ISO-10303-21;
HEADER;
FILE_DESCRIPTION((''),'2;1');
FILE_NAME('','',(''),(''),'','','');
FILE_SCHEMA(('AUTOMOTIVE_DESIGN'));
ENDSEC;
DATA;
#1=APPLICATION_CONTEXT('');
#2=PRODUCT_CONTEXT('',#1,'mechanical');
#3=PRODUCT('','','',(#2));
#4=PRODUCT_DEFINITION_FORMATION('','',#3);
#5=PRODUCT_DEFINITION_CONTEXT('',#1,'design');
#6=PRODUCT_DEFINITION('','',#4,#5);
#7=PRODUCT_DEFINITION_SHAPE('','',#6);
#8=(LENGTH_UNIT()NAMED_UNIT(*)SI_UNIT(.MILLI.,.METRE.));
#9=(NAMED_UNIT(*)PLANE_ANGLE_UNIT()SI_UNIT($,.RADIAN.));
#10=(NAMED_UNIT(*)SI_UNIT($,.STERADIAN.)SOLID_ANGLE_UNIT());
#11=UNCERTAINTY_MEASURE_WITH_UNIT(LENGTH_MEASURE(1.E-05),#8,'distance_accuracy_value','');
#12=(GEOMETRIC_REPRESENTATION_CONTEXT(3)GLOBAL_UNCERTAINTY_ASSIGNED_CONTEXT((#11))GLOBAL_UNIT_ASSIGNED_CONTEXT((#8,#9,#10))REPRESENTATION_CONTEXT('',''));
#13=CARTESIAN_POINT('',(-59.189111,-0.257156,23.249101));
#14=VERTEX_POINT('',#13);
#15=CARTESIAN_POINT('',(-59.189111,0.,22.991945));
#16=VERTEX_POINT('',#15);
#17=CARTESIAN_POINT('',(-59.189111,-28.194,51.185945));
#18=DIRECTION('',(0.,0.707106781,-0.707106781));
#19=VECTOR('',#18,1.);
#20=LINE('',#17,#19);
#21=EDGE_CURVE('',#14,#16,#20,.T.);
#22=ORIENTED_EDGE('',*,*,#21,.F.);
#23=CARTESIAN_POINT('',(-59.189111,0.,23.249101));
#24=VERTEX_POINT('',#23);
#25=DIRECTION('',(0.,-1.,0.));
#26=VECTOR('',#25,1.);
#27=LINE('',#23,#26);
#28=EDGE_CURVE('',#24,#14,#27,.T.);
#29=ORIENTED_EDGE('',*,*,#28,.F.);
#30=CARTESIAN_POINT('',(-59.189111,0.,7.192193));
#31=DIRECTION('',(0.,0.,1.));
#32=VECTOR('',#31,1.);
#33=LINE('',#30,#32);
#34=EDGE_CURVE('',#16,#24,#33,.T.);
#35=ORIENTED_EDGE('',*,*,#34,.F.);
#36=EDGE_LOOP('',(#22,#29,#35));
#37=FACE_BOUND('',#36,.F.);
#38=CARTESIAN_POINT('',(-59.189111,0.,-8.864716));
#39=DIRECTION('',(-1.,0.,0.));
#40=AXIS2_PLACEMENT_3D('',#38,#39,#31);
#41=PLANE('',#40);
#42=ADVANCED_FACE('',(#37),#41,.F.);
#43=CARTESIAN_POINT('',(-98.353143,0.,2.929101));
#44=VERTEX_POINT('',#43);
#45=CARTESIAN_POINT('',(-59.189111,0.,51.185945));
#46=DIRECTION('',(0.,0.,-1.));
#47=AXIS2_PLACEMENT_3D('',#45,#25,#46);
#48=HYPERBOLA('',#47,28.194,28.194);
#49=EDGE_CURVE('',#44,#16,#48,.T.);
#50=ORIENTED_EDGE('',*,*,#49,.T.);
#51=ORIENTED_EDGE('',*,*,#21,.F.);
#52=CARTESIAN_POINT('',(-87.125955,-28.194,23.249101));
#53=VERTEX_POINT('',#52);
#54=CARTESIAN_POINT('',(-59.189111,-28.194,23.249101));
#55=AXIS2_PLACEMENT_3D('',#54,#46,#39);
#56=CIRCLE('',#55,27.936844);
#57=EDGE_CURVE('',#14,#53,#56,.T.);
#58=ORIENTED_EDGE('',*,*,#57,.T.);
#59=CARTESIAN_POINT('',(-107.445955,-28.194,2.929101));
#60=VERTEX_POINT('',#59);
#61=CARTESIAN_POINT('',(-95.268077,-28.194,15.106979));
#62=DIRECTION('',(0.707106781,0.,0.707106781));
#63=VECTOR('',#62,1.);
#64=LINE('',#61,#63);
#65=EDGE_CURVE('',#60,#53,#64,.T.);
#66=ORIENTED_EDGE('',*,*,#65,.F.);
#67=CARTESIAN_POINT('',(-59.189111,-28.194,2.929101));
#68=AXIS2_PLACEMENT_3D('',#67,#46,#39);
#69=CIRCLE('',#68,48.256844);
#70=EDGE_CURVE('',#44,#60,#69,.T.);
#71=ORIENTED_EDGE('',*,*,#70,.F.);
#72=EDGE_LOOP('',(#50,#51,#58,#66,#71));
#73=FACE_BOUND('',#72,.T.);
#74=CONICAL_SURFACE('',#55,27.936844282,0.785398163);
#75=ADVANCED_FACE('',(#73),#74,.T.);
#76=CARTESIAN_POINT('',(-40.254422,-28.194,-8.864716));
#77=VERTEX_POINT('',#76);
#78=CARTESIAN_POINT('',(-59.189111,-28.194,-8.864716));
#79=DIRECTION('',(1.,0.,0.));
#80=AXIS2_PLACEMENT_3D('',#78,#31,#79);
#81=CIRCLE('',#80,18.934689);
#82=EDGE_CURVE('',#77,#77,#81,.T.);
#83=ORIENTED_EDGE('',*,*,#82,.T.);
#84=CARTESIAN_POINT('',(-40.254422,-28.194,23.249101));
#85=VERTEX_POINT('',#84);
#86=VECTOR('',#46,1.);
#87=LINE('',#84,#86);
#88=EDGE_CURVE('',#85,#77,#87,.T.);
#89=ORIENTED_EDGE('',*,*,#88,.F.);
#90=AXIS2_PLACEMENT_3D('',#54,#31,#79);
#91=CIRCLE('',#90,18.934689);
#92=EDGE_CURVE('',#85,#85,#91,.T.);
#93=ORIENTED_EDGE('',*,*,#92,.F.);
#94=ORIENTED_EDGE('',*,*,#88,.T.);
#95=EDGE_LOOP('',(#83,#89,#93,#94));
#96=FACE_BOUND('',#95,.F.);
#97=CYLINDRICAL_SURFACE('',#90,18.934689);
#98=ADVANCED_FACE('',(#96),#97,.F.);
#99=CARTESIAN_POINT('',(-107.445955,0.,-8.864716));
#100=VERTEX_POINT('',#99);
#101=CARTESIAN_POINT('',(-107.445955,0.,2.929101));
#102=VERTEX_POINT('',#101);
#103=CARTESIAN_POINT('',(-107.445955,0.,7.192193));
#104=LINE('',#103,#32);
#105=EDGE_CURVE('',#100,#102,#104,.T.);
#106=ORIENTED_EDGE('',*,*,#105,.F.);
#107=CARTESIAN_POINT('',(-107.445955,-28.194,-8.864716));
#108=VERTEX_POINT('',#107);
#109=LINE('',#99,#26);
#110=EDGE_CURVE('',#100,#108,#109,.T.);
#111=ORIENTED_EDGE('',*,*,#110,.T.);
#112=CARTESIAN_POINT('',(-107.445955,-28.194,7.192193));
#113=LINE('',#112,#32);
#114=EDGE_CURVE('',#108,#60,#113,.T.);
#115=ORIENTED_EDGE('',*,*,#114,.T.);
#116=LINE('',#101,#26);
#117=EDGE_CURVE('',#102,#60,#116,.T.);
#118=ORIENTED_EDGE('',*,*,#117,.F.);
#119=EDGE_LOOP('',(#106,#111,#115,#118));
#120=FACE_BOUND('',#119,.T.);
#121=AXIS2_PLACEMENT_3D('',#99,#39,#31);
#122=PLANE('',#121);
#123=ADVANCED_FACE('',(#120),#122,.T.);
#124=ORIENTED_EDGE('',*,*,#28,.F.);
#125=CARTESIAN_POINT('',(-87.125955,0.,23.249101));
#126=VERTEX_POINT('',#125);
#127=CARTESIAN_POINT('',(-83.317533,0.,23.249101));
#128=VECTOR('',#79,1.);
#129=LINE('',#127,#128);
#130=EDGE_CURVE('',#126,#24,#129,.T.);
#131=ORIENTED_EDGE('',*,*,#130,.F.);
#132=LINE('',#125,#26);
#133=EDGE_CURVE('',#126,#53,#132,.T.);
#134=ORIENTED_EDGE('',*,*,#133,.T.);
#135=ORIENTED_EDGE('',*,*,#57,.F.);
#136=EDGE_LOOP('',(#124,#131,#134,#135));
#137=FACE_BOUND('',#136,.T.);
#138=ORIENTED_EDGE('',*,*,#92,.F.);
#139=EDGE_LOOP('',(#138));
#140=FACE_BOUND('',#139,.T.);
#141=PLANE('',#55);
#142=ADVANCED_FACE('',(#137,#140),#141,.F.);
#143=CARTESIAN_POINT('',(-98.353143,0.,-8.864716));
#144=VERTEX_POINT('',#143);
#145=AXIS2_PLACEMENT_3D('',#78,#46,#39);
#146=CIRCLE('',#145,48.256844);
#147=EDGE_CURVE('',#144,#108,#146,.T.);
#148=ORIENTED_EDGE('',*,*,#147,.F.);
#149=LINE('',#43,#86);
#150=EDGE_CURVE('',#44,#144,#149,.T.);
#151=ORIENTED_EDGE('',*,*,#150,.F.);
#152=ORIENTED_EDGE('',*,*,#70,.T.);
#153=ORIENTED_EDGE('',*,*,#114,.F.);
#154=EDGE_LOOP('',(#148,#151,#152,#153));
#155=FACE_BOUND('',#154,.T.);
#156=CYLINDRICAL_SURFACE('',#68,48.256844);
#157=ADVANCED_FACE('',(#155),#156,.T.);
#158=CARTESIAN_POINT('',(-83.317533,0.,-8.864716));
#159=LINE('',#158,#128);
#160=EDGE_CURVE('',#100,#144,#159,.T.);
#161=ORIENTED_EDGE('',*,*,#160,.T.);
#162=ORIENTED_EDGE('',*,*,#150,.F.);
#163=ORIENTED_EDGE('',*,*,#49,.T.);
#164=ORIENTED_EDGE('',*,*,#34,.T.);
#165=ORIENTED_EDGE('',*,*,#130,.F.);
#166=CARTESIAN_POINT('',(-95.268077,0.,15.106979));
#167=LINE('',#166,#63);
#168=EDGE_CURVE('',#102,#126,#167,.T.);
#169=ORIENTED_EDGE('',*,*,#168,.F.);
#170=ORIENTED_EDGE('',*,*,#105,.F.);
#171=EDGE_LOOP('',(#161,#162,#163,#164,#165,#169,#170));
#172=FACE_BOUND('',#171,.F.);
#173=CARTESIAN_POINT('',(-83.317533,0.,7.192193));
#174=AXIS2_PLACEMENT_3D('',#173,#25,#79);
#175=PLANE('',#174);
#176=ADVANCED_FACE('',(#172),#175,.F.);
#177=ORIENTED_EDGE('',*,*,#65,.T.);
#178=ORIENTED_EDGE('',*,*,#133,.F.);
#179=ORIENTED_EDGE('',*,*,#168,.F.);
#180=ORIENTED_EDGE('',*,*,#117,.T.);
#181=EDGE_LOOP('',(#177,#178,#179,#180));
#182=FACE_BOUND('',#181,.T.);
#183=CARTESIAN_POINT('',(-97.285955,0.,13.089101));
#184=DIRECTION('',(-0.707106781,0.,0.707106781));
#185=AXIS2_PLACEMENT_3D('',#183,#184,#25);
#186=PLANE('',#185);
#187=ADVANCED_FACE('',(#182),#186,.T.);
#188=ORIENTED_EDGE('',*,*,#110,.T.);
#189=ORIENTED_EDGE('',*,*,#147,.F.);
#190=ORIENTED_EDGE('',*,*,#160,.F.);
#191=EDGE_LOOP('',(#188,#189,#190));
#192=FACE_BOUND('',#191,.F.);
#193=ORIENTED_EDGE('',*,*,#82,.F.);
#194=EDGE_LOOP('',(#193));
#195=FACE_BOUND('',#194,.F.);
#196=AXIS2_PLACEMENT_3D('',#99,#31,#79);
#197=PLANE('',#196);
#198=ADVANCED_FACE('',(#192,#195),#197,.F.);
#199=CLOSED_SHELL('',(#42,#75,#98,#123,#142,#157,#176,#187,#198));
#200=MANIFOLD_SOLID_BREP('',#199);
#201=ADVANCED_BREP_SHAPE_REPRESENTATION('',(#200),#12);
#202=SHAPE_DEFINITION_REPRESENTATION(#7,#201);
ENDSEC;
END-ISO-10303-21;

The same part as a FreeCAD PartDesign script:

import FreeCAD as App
import Part
import Sketcher

V = App.Vector
Q = App.Units.Quantity


def edges_at(feature, points):
    """Names of the edges that pass closest to the given points."""
    edges = feature.Shape.Edges
    near = lambda p: min(range(len(edges)), key=lambda i: edges[i].distToShape(Part.Vertex(*p))[0])
    return sorted({f"Edge{near(p) + 1}" for p in points})


def add_polygon(sketch, points):
    """Adds a closed chain of lines whose ends are joined by coincident constraints."""
    first, n = sketch.GeometryCount, len(points)
    for a, b in zip(points, points[1:] + points[:1]):
        sketch.addGeometry(Part.LineSegment(App.Vector(*a, 0), App.Vector(*b, 0)), False)
    for i in range(n):
        sketch.addConstraint(Sketcher.Constraint("Coincident", first + i, 2, first + (i + 1) % n, 1))

doc = App.newDocument("Part")
body = doc.addObject("PartDesign::Body", "Body")

# Sketch on XZ plane
sketch1 = body.newObject("Sketcher::SketchObject", "Sketch")
sketch1.AttachmentSupport = (doc.getObject("XZ_Plane"), [""])
sketch1.MapMode = "FlatFace"
add_polygon(sketch1, [(-107, 23), (-107, -9), (-59, -9), (-59, 23)])  # lines 0-3
sketch1.addConstraint([
    Sketcher.Constraint("Vertical", 0),
    Sketcher.Constraint("Horizontal", 1),
    Sketcher.Constraint("Vertical", 2),
    Sketcher.Constraint("Horizontal", 3),
    Sketcher.Constraint("DistanceY", -1, 1, 2, 2, 23.249101),
    Sketcher.Constraint("DistanceX", 1, 1, 1, 2, 48.256844),
    Sketcher.Constraint("DistanceY", 0, 2, 0, 1, 32.113817),
    Sketcher.Constraint("DistanceX", 1, 2, -1, 1, 59.189111),
])
pad1 = body.newObject("PartDesign::Pad", "Pad")
pad1.Profile = sketch1
pad1.Length = Q("1.11 in")
doc.recompute()

chamfer = body.newObject("PartDesign::Chamfer", "Chamfer")
chamfer.Base = (pad1, edges_at(pad1, [(-107.446, -14.097, 23.249)]))
chamfer.Size = Q("0.8 in")

# Sketch on XZ plane
sketch2 = body.newObject("Sketcher::SketchObject", "Sketch001")
sketch2.AttachmentSupport = (doc.getObject("XZ_Plane"), [""])
sketch2.MapMode = "FlatFace"
sketch2.AttachmentOffset = App.Placement(V(0, 0, 1.11 * 25.4), App.Rotation())
add_polygon(sketch2, [(-59, 23), (-87, 23), (-107, 3), (-107, -9), (-59, -9)])  # lines 0-4
sketch2.addGeometry(Part.LineSegment(V(-59, 23, 0), V(-59, -9, 0)), True)  # axis
sketch2.addConstraint([
    Sketcher.Constraint("Horizontal", 0),
    Sketcher.Constraint("Vertical", 2),
    Sketcher.Constraint("Horizontal", 3),
    Sketcher.Constraint("Vertical", 4),
    Sketcher.Constraint("Vertical", 5),
    Sketcher.Constraint("Coincident", 5, 1, 4, 2),
    Sketcher.Constraint("Horizontal", 2, 2, 5, 2),
    Sketcher.Constraint("Angle", 1, Q("-135 deg")),
    Sketcher.Constraint("DistanceX", 1, 2, 0, 2, Q("0.8 in")),
    Sketcher.Constraint("DistanceY", -1, 1, 0, 2, 23.249101),
    Sketcher.Constraint("DistanceX", 0, 2, 0, 1, 27.936844),
    Sketcher.Constraint("DistanceY", 2, 2, 2, 1, 11.793817),
    Sketcher.Constraint("DistanceX", 3, 2, -1, 1, 59.189111),
])
revolution = body.newObject("PartDesign::Revolution", "Revolution")
revolution.Profile = sketch2
revolution.ReferenceAxis = (sketch2, ["Axis0"])
revolution.Angle = 360

# Sketch on XY plane
sketch3 = body.newObject("Sketcher::SketchObject", "Sketch002")
sketch3.AttachmentSupport = (doc.getObject("XY_Plane"), [""])
sketch3.MapMode = "FlatFace"
sketch3.AttachmentOffset = App.Placement(V(0, 0, 23.249101), App.Rotation())
sketch3.addGeometry(Part.Circle(V(-59, -28, 0), V(0, 0, 1), 19), False)
sketch3.addConstraint([
    Sketcher.Constraint("DistanceY", 0, 3, -1, 1, Q("1.11 in")),
    Sketcher.Constraint("Diameter", 0, 37.869378),
    Sketcher.Constraint("DistanceX", 0, 3, -1, 1, 59.189111),
])
pocket1 = body.newObject("PartDesign::Pocket", "Pocket")
pocket1.Profile = sketch3
pocket1.Type = "ThroughAll"

doc.recompute()
